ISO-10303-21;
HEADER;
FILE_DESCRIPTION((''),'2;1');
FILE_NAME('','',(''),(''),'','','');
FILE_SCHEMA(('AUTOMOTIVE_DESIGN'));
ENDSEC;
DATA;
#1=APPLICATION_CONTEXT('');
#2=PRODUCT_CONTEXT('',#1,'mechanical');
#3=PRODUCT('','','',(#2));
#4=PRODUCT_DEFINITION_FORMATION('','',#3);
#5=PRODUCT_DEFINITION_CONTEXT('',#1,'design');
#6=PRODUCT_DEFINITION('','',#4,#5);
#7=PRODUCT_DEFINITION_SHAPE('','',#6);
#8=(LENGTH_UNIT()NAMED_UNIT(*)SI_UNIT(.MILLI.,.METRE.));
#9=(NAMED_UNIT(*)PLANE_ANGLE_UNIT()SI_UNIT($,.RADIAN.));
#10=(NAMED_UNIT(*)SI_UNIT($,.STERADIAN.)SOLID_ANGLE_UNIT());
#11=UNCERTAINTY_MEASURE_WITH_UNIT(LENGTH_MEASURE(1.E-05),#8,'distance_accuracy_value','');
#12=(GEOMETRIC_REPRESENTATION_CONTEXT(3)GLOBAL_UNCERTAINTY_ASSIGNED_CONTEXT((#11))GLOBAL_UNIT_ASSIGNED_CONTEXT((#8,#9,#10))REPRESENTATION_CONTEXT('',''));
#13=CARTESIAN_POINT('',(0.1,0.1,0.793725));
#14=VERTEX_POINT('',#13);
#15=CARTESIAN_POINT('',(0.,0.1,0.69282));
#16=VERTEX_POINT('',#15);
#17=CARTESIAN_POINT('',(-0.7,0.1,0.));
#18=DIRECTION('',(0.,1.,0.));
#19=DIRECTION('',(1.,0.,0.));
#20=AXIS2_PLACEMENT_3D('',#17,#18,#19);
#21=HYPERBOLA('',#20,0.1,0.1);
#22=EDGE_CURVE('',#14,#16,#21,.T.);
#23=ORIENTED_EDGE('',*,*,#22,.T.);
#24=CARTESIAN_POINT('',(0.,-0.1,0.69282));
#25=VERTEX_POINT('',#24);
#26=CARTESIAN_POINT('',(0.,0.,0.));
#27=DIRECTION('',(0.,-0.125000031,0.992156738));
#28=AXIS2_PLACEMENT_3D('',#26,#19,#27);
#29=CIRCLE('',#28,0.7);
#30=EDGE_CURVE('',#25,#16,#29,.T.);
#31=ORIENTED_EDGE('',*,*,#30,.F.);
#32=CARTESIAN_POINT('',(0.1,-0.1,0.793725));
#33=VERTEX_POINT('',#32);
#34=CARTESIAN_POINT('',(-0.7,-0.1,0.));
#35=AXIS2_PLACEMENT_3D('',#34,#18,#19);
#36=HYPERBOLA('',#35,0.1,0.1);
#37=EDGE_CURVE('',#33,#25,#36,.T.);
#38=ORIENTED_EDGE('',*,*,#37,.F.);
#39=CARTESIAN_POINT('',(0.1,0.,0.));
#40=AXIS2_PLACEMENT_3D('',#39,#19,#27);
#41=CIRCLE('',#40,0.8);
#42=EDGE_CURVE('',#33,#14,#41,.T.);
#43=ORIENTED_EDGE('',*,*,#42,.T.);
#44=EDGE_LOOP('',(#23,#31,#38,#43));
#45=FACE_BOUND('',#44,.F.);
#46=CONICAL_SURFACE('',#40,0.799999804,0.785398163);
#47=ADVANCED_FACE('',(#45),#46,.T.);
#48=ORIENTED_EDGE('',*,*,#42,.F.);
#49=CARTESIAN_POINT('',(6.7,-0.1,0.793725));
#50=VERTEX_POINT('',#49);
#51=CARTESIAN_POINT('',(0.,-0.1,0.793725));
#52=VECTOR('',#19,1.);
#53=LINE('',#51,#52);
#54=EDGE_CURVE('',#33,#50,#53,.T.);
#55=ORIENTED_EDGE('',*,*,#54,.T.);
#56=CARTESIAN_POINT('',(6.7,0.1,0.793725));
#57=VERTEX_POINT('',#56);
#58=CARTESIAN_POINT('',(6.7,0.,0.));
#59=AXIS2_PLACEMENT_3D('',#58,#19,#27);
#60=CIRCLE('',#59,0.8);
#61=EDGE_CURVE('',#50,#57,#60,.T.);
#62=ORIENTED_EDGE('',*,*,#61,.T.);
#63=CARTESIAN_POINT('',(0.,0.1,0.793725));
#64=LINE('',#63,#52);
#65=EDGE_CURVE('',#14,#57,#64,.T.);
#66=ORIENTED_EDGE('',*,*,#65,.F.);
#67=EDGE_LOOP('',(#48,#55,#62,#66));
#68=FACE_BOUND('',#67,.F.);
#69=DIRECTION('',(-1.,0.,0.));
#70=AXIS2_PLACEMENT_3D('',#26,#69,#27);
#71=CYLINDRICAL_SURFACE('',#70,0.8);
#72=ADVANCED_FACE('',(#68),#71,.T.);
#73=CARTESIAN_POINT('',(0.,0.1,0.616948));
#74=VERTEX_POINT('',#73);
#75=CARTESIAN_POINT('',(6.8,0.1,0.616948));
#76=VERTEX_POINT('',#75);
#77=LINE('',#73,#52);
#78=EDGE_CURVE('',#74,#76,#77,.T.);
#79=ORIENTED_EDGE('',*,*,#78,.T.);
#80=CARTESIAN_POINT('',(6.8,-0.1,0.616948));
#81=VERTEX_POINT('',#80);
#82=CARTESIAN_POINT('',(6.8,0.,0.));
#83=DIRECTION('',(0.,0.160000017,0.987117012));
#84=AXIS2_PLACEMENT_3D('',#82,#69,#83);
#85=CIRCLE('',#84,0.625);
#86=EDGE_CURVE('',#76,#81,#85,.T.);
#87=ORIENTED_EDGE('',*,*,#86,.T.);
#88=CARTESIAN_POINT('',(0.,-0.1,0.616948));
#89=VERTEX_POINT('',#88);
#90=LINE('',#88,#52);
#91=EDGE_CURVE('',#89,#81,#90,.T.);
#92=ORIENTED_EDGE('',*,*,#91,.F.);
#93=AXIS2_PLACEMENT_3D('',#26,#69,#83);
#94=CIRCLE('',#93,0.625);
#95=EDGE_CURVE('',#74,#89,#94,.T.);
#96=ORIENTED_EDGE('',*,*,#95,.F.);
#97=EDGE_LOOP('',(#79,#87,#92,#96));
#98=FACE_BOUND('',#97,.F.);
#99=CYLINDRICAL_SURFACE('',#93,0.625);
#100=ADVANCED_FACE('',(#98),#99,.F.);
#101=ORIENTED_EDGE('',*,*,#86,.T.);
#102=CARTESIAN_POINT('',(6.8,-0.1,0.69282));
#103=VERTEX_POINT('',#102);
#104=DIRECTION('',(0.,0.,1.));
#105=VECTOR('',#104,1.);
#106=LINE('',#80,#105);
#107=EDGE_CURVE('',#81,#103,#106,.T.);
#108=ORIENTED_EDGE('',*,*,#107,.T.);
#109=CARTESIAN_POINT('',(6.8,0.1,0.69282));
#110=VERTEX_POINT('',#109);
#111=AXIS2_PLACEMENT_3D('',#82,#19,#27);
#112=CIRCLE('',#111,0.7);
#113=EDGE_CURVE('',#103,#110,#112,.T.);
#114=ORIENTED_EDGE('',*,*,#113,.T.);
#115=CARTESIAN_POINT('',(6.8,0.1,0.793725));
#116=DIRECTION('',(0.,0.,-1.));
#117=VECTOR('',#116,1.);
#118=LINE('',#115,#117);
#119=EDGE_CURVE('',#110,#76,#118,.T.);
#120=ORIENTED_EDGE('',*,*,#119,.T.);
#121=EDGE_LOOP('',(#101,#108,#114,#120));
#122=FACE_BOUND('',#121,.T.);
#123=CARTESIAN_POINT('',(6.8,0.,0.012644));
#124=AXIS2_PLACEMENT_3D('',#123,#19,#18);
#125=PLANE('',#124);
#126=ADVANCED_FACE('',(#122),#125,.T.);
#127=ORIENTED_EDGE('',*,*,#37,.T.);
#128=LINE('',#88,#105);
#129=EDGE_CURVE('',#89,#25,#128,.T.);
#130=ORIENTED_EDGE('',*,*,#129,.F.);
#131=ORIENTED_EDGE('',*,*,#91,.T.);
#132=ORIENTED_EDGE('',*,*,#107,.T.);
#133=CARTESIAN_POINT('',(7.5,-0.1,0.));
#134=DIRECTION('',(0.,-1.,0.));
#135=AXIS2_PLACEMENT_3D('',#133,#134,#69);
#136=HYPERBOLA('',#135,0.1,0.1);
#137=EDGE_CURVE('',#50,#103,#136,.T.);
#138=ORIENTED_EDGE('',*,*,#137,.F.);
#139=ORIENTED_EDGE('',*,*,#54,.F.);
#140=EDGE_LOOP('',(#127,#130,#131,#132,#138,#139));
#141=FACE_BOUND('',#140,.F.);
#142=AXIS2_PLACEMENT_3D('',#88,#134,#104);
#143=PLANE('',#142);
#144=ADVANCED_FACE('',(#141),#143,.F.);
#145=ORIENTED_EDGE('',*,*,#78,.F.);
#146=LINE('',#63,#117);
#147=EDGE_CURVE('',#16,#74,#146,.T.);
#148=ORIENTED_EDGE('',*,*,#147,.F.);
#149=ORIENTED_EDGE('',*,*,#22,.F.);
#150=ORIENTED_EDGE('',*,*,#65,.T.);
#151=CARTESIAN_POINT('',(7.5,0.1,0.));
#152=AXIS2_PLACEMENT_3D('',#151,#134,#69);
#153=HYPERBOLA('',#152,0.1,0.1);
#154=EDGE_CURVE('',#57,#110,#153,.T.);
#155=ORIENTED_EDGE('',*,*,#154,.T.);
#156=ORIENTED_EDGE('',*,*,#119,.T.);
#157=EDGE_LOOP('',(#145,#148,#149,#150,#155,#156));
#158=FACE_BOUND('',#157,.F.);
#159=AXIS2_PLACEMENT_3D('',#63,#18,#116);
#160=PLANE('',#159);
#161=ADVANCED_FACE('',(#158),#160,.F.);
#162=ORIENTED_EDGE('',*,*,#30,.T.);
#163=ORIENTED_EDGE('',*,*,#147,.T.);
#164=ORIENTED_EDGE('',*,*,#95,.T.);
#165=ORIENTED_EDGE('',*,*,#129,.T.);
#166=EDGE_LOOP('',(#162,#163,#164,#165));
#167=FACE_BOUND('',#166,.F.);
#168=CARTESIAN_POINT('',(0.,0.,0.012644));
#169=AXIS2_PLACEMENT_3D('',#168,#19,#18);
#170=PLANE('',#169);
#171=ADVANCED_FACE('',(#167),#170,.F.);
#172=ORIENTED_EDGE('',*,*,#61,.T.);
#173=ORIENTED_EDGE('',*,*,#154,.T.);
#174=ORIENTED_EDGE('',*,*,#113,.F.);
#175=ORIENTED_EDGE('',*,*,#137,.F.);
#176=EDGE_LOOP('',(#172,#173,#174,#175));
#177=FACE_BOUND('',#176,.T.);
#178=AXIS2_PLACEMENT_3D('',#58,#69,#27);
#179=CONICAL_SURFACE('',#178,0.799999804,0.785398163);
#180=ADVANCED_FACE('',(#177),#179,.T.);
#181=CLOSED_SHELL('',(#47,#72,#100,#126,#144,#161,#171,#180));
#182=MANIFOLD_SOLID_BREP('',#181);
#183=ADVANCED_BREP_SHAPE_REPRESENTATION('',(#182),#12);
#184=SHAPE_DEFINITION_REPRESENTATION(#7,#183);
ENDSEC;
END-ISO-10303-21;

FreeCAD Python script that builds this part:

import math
import FreeCAD as App
import Part
import Sketcher
from FreeCAD import Vector


def edges_at(feature, points):
    """Names of the edges that pass closest to the given points."""
    edges = feature.Shape.Edges
    near = lambda p: min(range(len(edges)), key=lambda i: edges[i].distToShape(Part.Vertex(*p))[0])
    return sorted({f"Edge{near(p) + 1}" for p in points})

doc = App.newDocument("Part")
body = doc.addObject("PartDesign::Body", "Body")

# Sketch on YZ plane
sketch1 = doc.addObject("Sketcher::SketchObject", "Sketch")
body.addObject(sketch1)
sketch1.AttachmentSupport = (doc.YZ_Plane, [""])
sketch1.MapMode = "FlatFace"
sketch1.addGeometry([
    Part.ArcOfCircle(Part.Circle(Vector(0, 0, 0), Vector(0, 0, 1), 0.62), math.radians(99), math.radians(441)),
    Part.LineSegment(Vector(-0.1, 0.62, 0), Vector(-0.1, 0.79, 0)),
    Part.ArcOfCircle(Part.Circle(Vector(0, 0, 0), Vector(0, 0, 1), 0.8), math.radians(97), math.radians(443)),
    Part.LineSegment(Vector(0.1, 0.79, 0), Vector(0.1, 0.62, 0)),
], False)
sketch1.addConstraint([
    Sketcher.Constraint("Coincident", 0, 1, 1, 1),
    Sketcher.Constraint("Coincident", 1, 2, 2, 1),
    Sketcher.Constraint("Coincident", 2, 2, 3, 1),
    Sketcher.Constraint("Coincident", 3, 2, 0, 2),
    Sketcher.Constraint("Vertical", 1),
    Sketcher.Constraint("Vertical", 3),
    Sketcher.Constraint("Coincident", 0, 3, -1, 1),
    Sketcher.Constraint("Coincident", 2, 3, -1, 1),
    Sketcher.Constraint("Horizontal", 1, 2, 2, 2),
    Sketcher.Constraint("Radius", 2, 0.8),
    Sketcher.Constraint("Radius", 0, 0.625),
    Sketcher.Constraint("DistanceX", 0, 1, -1, 1, 0.1),
])
pad1 = doc.addObject("PartDesign::Pad", "Pad")
body.addObject(pad1)
pad1.Profile = sketch1
pad1.Length = 6.8
doc.recompute()

chamfer = doc.addObject("PartDesign::Chamfer", "Chamfer")
body.addObject(chamfer)
chamfer.Base = (pad1, edges_at(pad1, [(6.8, 0, -0.8)]))
chamfer.Size = 0.1
doc.recompute()

chamfer2 = doc.addObject("PartDesign::Chamfer", "Chamfer001")
body.addObject(chamfer2)
chamfer2.Base = (chamfer, edges_at(chamfer, [(0, 0, -0.8)]))
chamfer2.Size = 0.1

doc.recompute()
